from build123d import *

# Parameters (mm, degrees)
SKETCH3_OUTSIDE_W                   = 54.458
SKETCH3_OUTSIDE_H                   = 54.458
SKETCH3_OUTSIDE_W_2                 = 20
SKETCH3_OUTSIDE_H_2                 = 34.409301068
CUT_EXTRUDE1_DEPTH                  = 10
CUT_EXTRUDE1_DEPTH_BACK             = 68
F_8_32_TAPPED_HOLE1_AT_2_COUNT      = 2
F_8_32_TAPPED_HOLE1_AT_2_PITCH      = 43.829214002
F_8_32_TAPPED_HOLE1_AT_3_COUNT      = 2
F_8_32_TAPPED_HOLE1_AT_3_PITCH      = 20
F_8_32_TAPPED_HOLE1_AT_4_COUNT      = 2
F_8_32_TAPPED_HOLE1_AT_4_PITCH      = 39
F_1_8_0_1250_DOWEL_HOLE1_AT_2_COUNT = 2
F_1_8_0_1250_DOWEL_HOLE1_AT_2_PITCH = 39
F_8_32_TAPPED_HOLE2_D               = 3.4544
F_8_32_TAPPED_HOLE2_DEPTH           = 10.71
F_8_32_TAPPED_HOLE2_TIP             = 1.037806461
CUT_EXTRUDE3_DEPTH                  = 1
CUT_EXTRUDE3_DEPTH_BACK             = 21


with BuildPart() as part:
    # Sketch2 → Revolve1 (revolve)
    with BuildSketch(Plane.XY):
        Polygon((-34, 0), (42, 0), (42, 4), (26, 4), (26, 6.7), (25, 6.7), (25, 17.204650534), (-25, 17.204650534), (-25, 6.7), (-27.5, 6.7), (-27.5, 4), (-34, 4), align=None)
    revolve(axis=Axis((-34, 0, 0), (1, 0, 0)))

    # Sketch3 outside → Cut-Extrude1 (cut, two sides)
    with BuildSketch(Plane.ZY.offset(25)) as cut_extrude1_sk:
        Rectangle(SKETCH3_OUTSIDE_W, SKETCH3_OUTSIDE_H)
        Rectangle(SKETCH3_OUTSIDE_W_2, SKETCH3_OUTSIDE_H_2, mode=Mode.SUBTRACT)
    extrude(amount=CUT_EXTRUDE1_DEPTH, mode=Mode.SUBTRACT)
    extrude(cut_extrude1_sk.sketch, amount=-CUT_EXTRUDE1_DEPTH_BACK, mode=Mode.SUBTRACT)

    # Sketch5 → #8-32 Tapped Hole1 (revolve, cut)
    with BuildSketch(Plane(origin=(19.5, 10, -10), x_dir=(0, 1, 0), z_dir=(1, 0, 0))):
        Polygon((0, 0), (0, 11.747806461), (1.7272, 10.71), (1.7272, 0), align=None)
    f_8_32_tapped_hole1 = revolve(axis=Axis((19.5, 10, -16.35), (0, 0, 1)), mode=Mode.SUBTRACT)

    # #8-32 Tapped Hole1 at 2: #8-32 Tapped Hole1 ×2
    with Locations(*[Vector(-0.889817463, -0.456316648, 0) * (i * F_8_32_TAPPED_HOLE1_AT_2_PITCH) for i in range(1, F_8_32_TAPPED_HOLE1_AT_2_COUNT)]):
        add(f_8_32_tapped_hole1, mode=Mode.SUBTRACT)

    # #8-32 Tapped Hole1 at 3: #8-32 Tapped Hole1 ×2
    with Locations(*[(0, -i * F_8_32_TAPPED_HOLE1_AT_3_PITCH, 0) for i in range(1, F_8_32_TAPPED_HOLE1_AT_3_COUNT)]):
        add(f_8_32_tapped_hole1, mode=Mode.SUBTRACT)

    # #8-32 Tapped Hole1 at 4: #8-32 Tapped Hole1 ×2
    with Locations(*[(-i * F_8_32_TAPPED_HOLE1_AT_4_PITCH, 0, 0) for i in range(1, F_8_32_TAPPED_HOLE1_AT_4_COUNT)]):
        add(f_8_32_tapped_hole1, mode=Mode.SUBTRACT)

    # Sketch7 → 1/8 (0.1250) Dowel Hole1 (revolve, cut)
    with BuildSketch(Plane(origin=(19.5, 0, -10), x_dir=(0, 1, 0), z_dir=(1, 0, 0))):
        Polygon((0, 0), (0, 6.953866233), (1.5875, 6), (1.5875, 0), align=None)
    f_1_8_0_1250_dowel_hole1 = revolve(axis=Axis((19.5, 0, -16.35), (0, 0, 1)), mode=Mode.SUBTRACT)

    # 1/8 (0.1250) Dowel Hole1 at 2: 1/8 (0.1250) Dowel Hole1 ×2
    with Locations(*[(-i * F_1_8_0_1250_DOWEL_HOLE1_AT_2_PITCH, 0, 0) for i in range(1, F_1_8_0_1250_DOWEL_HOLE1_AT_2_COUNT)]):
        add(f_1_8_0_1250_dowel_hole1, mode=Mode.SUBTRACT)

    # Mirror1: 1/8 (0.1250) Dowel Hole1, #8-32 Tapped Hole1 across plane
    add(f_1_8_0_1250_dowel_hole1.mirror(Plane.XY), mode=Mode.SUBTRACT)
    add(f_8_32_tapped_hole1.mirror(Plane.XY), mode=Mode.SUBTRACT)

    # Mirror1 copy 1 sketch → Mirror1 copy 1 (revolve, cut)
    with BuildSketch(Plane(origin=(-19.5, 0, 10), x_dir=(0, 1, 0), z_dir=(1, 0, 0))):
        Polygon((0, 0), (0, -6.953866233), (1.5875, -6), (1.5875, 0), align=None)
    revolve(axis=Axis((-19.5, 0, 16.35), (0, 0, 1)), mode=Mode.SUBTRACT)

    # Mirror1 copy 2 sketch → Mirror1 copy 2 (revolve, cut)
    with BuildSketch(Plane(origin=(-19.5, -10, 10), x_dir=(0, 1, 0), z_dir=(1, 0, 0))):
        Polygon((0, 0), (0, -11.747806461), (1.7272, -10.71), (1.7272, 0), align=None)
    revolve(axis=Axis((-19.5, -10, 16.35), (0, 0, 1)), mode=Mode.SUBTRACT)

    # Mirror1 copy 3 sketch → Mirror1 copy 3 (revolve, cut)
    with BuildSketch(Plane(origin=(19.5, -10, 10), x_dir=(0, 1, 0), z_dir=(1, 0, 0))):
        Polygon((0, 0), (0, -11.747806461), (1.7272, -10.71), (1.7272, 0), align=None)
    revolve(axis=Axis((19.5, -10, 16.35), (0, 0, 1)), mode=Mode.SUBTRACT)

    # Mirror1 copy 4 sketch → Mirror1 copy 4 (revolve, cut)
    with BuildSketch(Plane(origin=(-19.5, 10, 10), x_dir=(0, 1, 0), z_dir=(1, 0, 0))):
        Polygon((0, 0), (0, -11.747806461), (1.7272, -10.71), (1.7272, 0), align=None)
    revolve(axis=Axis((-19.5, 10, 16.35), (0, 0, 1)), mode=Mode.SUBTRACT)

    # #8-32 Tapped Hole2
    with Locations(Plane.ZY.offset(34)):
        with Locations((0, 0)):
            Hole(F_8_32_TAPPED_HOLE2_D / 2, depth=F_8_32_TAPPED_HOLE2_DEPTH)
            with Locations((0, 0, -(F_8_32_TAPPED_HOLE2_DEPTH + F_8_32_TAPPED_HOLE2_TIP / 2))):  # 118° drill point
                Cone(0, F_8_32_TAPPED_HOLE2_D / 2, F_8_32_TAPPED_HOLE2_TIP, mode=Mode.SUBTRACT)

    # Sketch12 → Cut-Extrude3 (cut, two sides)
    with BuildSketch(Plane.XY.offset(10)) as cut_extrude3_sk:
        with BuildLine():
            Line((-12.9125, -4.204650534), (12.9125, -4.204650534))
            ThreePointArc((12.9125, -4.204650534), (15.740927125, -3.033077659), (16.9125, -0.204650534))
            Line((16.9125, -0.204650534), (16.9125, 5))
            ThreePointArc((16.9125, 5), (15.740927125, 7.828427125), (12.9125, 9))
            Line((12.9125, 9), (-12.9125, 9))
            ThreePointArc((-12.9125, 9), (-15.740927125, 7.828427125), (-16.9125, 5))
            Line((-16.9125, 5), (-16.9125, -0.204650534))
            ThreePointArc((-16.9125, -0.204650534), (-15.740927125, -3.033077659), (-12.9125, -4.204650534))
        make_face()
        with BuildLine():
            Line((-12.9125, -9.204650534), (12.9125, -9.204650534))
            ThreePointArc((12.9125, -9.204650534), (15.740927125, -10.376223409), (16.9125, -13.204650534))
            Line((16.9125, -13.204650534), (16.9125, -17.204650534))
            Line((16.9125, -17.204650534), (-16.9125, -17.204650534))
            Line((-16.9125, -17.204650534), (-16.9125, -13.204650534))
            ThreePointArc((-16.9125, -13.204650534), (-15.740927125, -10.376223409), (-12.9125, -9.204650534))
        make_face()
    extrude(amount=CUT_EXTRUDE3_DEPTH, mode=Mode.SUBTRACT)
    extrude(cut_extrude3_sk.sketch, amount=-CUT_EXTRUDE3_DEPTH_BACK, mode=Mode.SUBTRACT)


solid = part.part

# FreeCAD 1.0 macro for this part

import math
import FreeCAD as App
import Part
import Sketcher
Q = App.Units.Quantity


def add_polygon(sketch, points):
    """Adds a closed chain of lines whose ends are joined by coincident constraints."""
    first, n = sketch.GeometryCount, len(points)
    for a, b in zip(points, points[1:] + points[:1]):
        sketch.addGeometry(Part.LineSegment(App.Vector(*a, 0), App.Vector(*b, 0)), False)
    for i in range(n):
        sketch.addConstraint(Sketcher.Constraint("Coincident", first + i, 2, first + (i + 1) % n, 1))

doc = App.newDocument("Part")
params = doc.addObject("Spreadsheet::Sheet", "Params")
for row, (alias, value) in enumerate([
    ("sketch1_width", "76 mm"),
    ("sketch1_width2", "16 mm"),
    ("sketch1_width3", "1 mm"),
    ("sketch1_width4", "50 mm"),
    ("sketch1_height", "4 mm"),
    ("revolution_angle", "360 deg"),
    ("sketch2_height", "20 mm"),
    ("sketch3_height", "10.71 mm"),
    ("groove_angle", "360 deg"),
    ("linearpattern_pitch", "43.829214 mm"),
    ("linearpattern2_pitch", "20 mm"),
    ("linearpattern3_pitch", "39 mm"),
    ("sketch4_height", "6 mm"),
    ("groove2_angle", "360 deg"),
    ("linearpattern4_pitch", "39 mm"),
    ("sketch5_height", "6 mm"),
    ("groove3_angle", "360 deg"),
    ("sketch6_height", "10.71 mm"),
    ("groove4_angle", "360 deg"),
    ("sketch7_height", "10.71 mm"),
    ("groove5_angle", "360 deg"),
    ("sketch8_height", "10.71 mm"),
    ("groove6_angle", "360 deg"),
    ("hole_diameter", "3.4544 mm"),
    ("hole_depth", "10.71 mm"),
    ("sketch10_radius", "4 mm"),
    ("sketch10_height", "4 mm"),
], start=1):
    params.set(f"A{row}", alias)
    params.set(f"B{row}", "=" + value)
    params.setAlias(f"B{row}", alias)

body = doc.addObject("PartDesign::Body", "Body")

# Sketch on XY plane
sketch1 = doc.addObject("Sketcher::SketchObject", "Sketch")
body.addObject(sketch1)
sketch1.AttachmentSupport = (doc.XY_Plane, [""])
sketch1.MapMode = "FlatFace"
add_polygon(sketch1, [(-34, 0), (42, 0), (42, 4), (26, 4), (26, 6.7), (25, 6.7), (25, 17.2), (-25, 17.2), (-25, 6.7), (-27.5, 6.7), (-27.5, 4), (-34, 4)])  # lines 0-11
sketch1.addConstraint([
    Sketcher.Constraint("Horizontal", 0),
    Sketcher.Constraint("Vertical", 1),
    Sketcher.Constraint("Horizontal", 2),
    Sketcher.Constraint("Vertical", 3),
    Sketcher.Constraint("Horizontal", 4),
    Sketcher.Constraint("Vertical", 5),
    Sketcher.Constraint("Horizontal", 6),
    Sketcher.Constraint("Vertical", 7),
    Sketcher.Constraint("Horizontal", 8),
    Sketcher.Constraint("Vertical", 9),
    Sketcher.Constraint("Horizontal", 10),
    Sketcher.Constraint("Vertical", 11),
    Sketcher.Constraint("Symmetric", 4, 2, 7, 2, -2),
    Sketcher.Constraint("PointOnObject", 0, 2, -1),
    Sketcher.Constraint("Horizontal", 2, 2, 9, 2),
    Sketcher.Constraint("DistanceX", 0, 1, 0, 2, 76.0),
    Sketcher.Constraint("DistanceX", 2, 2, 2, 1, 16.0),
    Sketcher.Constraint("DistanceX", 4, 2, 4, 1, 1.0),
    Sketcher.Constraint("DistanceX", 6, 2, 6, 1, 50.0),
    Sketcher.Constraint("DistanceY", 1, 1, 1, 2, 4.0),
    Sketcher.Constraint("DistanceX", 8, 2, 8, 1, 2.5),
    Sketcher.Constraint("DistanceY", 3, 1, 3, 2, 2.7),
    Sketcher.Constraint("DistanceY", 5, 1, 5, 2, 10.504651),
])
sketch1.setExpression("Constraints[27]", "Params.sketch1_width")
sketch1.setExpression("Constraints[28]", "Params.sketch1_width2")
sketch1.setExpression("Constraints[29]", "Params.sketch1_width3")
sketch1.setExpression("Constraints[30]", "Params.sketch1_width4")
sketch1.setExpression("Constraints[31]", "Params.sketch1_height")
revolution = doc.addObject("PartDesign::Revolution", "Revolution")
body.addObject(revolution)
revolution.Profile = sketch1
revolution.ReferenceAxis = (sketch1, ["H_Axis"])
revolution.setExpression("Angle", "Params.revolution_angle")

# Sketch on YZ plane
sketch2 = doc.addObject("Sketcher::SketchObject", "Sketch001")
body.addObject(sketch2)
sketch2.AttachmentSupport = (doc.YZ_Plane, [""])
sketch2.MapMode = "FlatFace"
sketch2.AttachmentOffset = App.Placement(App.Vector(0, 0, -25), App.Rotation())
add_polygon(sketch2, [(27, -27), (-27, -27), (-27, 27), (27, 27)])  # lines 0-3
add_polygon(sketch2, [(-17, 10), (-17, -10), (17, -10), (17, 10)])  # lines 4-7
sketch2.addConstraint([
    Sketcher.Constraint("Horizontal", 0),
    Sketcher.Constraint("Vertical", 1),
    Sketcher.Constraint("Horizontal", 2),
    Sketcher.Constraint("Vertical", 3),
    Sketcher.Constraint("Vertical", 4),
    Sketcher.Constraint("Horizontal", 5),
    Sketcher.Constraint("Vertical", 6),
    Sketcher.Constraint("Horizontal", 7),
    Sketcher.Constraint("Symmetric", 0, 2, 2, 2, -1, 1),
    Sketcher.Constraint("Symmetric", 4, 2, 6, 2, -1, 1),
    Sketcher.Constraint("Equal", 2, 1),
    Sketcher.Constraint("DistanceY", 4, 2, 4, 1, 20.0),
    Sketcher.Constraint("DistanceX", 0, 2, 0, 1, 54.458),
    Sketcher.Constraint("DistanceX", 5, 1, 5, 2, 34.409301),
])
sketch2.setExpression("Constraints[19]", "Params.sketch2_height")
pocket1 = doc.addObject("PartDesign::Pocket", "Pocket")
body.addObject(pocket1)
pocket1.Profile = sketch2
pocket1.Type = "ThroughAll"
pocket1.Midplane = True

# Sketch on YZ plane
sketch3 = doc.addObject("Sketcher::SketchObject", "Sketch002")
body.addObject(sketch3)
sketch3.AttachmentSupport = (doc.YZ_Plane, [""])
sketch3.MapMode = "FlatFace"
sketch3.AttachmentOffset = App.Placement(App.Vector(0, 0, 19.5), App.Rotation())
add_polygon(sketch3, [(10, 1.7), (10, -10), (11.7, -10), (11.7, 0.7)])  # lines 0-3
sketch3.addGeometry(Part.LineSegment(App.Vector(10, -10, 0), App.Vector(10, 1.7, 0)), True)  # axis
sketch3.addConstraint([
    Sketcher.Constraint("Vertical", 0),
    Sketcher.Constraint("Horizontal", 1),
    Sketcher.Constraint("Vertical", 2),
    Sketcher.Constraint("Vertical", 4),
    Sketcher.Constraint("Coincident", 4, 1, 0, 2),
    Sketcher.Constraint("Equal", 0, 4),
    Sketcher.Constraint("Angle", 3, Q("149 deg")),
    Sketcher.Constraint("DistanceX", -1, 1, 0, 2, 10.0),
    Sketcher.Constraint("DistanceY", 0, 2, -1, 1, 10.0),
    Sketcher.Constraint("DistanceY", 2, 1, 2, 2, 10.71),
    Sketcher.Constraint("DistanceX", 1, 1, 1, 2, 1.7272),
])
sketch3.setExpression("Constraints[13]", "Params.sketch3_height")
groove = doc.addObject("PartDesign::Groove", "Groove")
body.addObject(groove)
groove.Profile = sketch3
groove.ReferenceAxis = (sketch3, ["Axis0"])
groove.setExpression("Angle", "Params.groove_angle")
doc.recompute()

datumline = doc.addObject("PartDesign::Line", "DatumLine")
body.addObject(datumline)
datumline.Placement = App.Placement(App.Vector(0, 0, 0), App.Rotation(App.Vector(0, 0, 1), App.Vector(-0.889817463, -0.456316648, 0)))
linearpattern = doc.addObject("PartDesign::LinearPattern", "LinearPattern")
body.addObject(linearpattern)
linearpattern.Originals = [groove]
linearpattern.Direction = (datumline, [""])
linearpattern.Mode = "offset"
linearpattern.setExpression("Offset", "Params.linearpattern_pitch")
linearpattern.Occurrences = 2
body.Tip = linearpattern
doc.recompute()

linearpattern2 = doc.addObject("PartDesign::LinearPattern", "LinearPattern001")
body.addObject(linearpattern2)
linearpattern2.Originals = [groove]
linearpattern2.Direction = (doc.Y_Axis, [""])
linearpattern2.Mode = "offset"
linearpattern2.setExpression("Offset", "Params.linearpattern2_pitch")
linearpattern2.Occurrences = 2
linearpattern2.Reversed = True
body.Tip = linearpattern2
doc.recompute()

linearpattern3 = doc.addObject("PartDesign::LinearPattern", "LinearPattern002")
body.addObject(linearpattern3)
linearpattern3.Originals = [groove]
linearpattern3.Direction = (doc.X_Axis, [""])
linearpattern3.Mode = "offset"
linearpattern3.setExpression("Offset", "Params.linearpattern3_pitch")
linearpattern3.Occurrences = 2
linearpattern3.Reversed = True
body.Tip = linearpattern3

# Sketch on YZ plane
sketch4 = doc.addObject("Sketcher::SketchObject", "Sketch003")
body.addObject(sketch4)
sketch4.AttachmentSupport = (doc.YZ_Plane, [""])
sketch4.MapMode = "FlatFace"
sketch4.AttachmentOffset = App.Placement(App.Vector(0, 0, 19.5), App.Rotation())
add_polygon(sketch4, [(0, -3), (0, -10), (1.6, -10), (1.6, -4)])  # lines 0-3
sketch4.addConstraint([
    Sketcher.Constraint("Vertical", 0),
    Sketcher.Constraint("Horizontal", 1),
    Sketcher.Constraint("Vertical", 2),
    Sketcher.Constraint("PointOnObject", 0, 2, -2),
    Sketcher.Constraint("DistanceY", 2, 1, 2, 2, 6.0),
    Sketcher.Constraint("Angle", 3, Q("149 deg")),
    Sketcher.Constraint("DistanceY", 0, 2, -1, 1, 10.0),
    Sketcher.Constraint("DistanceX", 1, 1, 1, 2, 1.5875),
])
sketch4.setExpression("Constraints[8]", "Params.sketch4_height")
groove2 = doc.addObject("PartDesign::Groove", "Groove001")
body.addObject(groove2)
groove2.Profile = sketch4
groove2.ReferenceAxis = (sketch4, ["V_Axis"])
groove2.setExpression("Angle", "Params.groove2_angle")
doc.recompute()

linearpattern4 = doc.addObject("PartDesign::LinearPattern", "LinearPattern003")
body.addObject(linearpattern4)
linearpattern4.Originals = [groove2]
linearpattern4.Direction = (doc.X_Axis, [""])
linearpattern4.Mode = "offset"
linearpattern4.setExpression("Offset", "Params.linearpattern4_pitch")
linearpattern4.Occurrences = 2
linearpattern4.Reversed = True
body.Tip = linearpattern4
doc.recompute()

mirrored = doc.addObject("PartDesign::Mirrored", "Mirrored")
body.addObject(mirrored)
mirrored.Originals = [groove2, groove]
mirrored.MirrorPlane = (doc.XY_Plane, [""])
body.Tip = mirrored

# Sketch on YZ plane
sketch5 = doc.addObject("Sketcher::SketchObject", "Sketch004")
body.addObject(sketch5)
sketch5.AttachmentSupport = (doc.YZ_Plane, [""])
sketch5.MapMode = "FlatFace"
sketch5.AttachmentOffset = App.Placement(App.Vector(0, 0, -19.5), App.Rotation())
add_polygon(sketch5, [(0, 10), (0, 3), (1.6, 4), (1.6, 10)])  # lines 0-3
sketch5.addConstraint([
    Sketcher.Constraint("Vertical", 0),
    Sketcher.Constraint("Vertical", 2),
    Sketcher.Constraint("Horizontal", 3),
    Sketcher.Constraint("PointOnObject", 0, 2, -2),
    Sketcher.Constraint("DistanceY", 2, 1, 2, 2, 6.0),
    Sketcher.Constraint("Angle", 1, Q("31 deg")),
    Sketcher.Constraint("DistanceY", -1, 1, 1, 2, 4.0),
    Sketcher.Constraint("DistanceX", 3, 2, 3, 1, 1.5875),
])
sketch5.setExpression("Constraints[8]", "Params.sketch5_height")
groove3 = doc.addObject("PartDesign::Groove", "Groove002")
body.addObject(groove3)
groove3.Profile = sketch5
groove3.ReferenceAxis = (sketch5, ["V_Axis"])
groove3.setExpression("Angle", "Params.groove3_angle")

# Sketch on YZ plane
sketch6 = doc.addObject("Sketcher::SketchObject", "Sketch005")
body.addObject(sketch6)
sketch6.AttachmentSupport = (doc.YZ_Plane, [""])
sketch6.MapMode = "FlatFace"
sketch6.AttachmentOffset = App.Placement(App.Vector(0, 0, -19.5), App.Rotation())
add_polygon(sketch6, [(-10, 10), (-10, -1.7), (-8.3, -0.7), (-8.3, 10)])  # lines 0-3
sketch6.addGeometry(Part.LineSegment(App.Vector(-10, -1.7, 0), App.Vector(-10, 10, 0)), True)  # axis
sketch6.addConstraint([
    Sketcher.Constraint("Vertical", 0),
    Sketcher.Constraint("Vertical", 2),
    Sketcher.Constraint("Horizontal", 3),
    Sketcher.Constraint("Vertical", 4),
    Sketcher.Constraint("Coincident", 4, 1, 0, 2),
    Sketcher.Constraint("Horizontal", 2, 2, 4, 2),
    Sketcher.Constraint("Angle", 1, Q("31 deg")),
    Sketcher.Constraint("DistanceX", 0, 2, -1, 1, 10.0),
    Sketcher.Constraint("DistanceY", -1, 1, 2, 2, 10.0),
    Sketcher.Constraint("DistanceY", 2, 1, 2, 2, 10.71),
    Sketcher.Constraint("DistanceX", 3, 2, 3, 1, 1.7272),
])
sketch6.setExpression("Constraints[13]", "Params.sketch6_height")
groove4 = doc.addObject("PartDesign::Groove", "Groove003")
body.addObject(groove4)
groove4.Profile = sketch6
groove4.ReferenceAxis = (sketch6, ["Axis0"])
groove4.setExpression("Angle", "Params.groove4_angle")

# Sketch on YZ plane
sketch7 = doc.addObject("Sketcher::SketchObject", "Sketch006")
body.addObject(sketch7)
sketch7.AttachmentSupport = (doc.YZ_Plane, [""])
sketch7.MapMode = "FlatFace"
sketch7.AttachmentOffset = App.Placement(App.Vector(0, 0, 19.5), App.Rotation())
add_polygon(sketch7, [(-10, 10), (-10, -1.7), (-8.3, -0.7), (-8.3, 10)])  # lines 0-3
sketch7.addGeometry(Part.LineSegment(App.Vector(-10, -1.7, 0), App.Vector(-10, 10, 0)), True)  # axis
sketch7.addConstraint([
    Sketcher.Constraint("Vertical", 0),
    Sketcher.Constraint("Vertical", 2),
    Sketcher.Constraint("Horizontal", 3),
    Sketcher.Constraint("Vertical", 4),
    Sketcher.Constraint("Coincident", 4, 1, 0, 2),
    Sketcher.Constraint("Horizontal", 2, 2, 4, 2),
    Sketcher.Constraint("Angle", 1, Q("31 deg")),
    Sketcher.Constraint("DistanceX", 0, 2, -1, 1, 10.0),
    Sketcher.Constraint("DistanceY", -1, 1, 2, 2, 10.0),
    Sketcher.Constraint("DistanceY", 2, 1, 2, 2, 10.71),
    Sketcher.Constraint("DistanceX", 3, 2, 3, 1, 1.7272),
])
sketch7.setExpression("Constraints[13]", "Params.sketch7_height")
groove5 = doc.addObject("PartDesign::Groove", "Groove004")
body.addObject(groove5)
groove5.Profile = sketch7
groove5.ReferenceAxis = (sketch7, ["Axis0"])
groove5.setExpression("Angle", "Params.groove5_angle")

# Sketch on YZ plane
sketch8 = doc.addObject("Sketcher::SketchObject", "Sketch007")
body.addObject(sketch8)
sketch8.AttachmentSupport = (doc.YZ_Plane, [""])
sketch8.MapMode = "FlatFace"
sketch8.AttachmentOffset = App.Placement(App.Vector(0, 0, -19.5), App.Rotation())
add_polygon(sketch8, [(10, 10), (10, -1.7), (11.7, -0.7), (11.7, 10)])  # lines 0-3
sketch8.addGeometry(Part.LineSegment(App.Vector(10, -1.7, 0), App.Vector(10, 10, 0)), True)  # axis
sketch8.addConstraint([
    Sketcher.Constraint("Vertical", 0),
    Sketcher.Constraint("Vertical", 2),
    Sketcher.Constraint("Horizontal", 3),
    Sketcher.Constraint("Vertical", 4),
    Sketcher.Constraint("Coincident", 4, 1, 0, 2),
    Sketcher.Constraint("Horizontal", 2, 2, 4, 2),
    Sketcher.Constraint("Angle", 1, Q("31 deg")),
    Sketcher.Constraint("DistanceX", -1, 1, 0, 2, 10.0),
    Sketcher.Constraint("DistanceY", -1, 1, 2, 2, 10.0),
    Sketcher.Constraint("DistanceY", 2, 1, 2, 2, 10.71),
    Sketcher.Constraint("DistanceX", 3, 2, 3, 1, 1.7272),
])
sketch8.setExpression("Constraints[13]", "Params.sketch8_height")
groove6 = doc.addObject("PartDesign::Groove", "Groove005")
body.addObject(groove6)
groove6.Profile = sketch8
groove6.ReferenceAxis = (sketch8, ["Axis0"])
groove6.setExpression("Angle", "Params.groove6_angle")

# Sketch on YZ plane
sketch9 = doc.addObject("Sketcher::SketchObject", "Sketch008")
body.addObject(sketch9)
sketch9.AttachmentSupport = (doc.YZ_Plane, [""])
sketch9.MapMode = "FlatFace"
sketch9.AttachmentOffset = App.Placement(App.Vector(0, 0, -34), App.Rotation())
sketch9.addGeometry(Part.Circle(App.Vector(0, 0, 0), App.Vector(0, 0, 1), 1.7), False)
sketch9.addConstraint([
    Sketcher.Constraint("Coincident", 0, 3, -1, 1),
    Sketcher.Constraint("Diameter", 0, 3.4544),
])
doc.recompute()
hole = doc.addObject("PartDesign::Hole", "Hole")
body.addObject(hole)
hole.Profile = sketch9
hole.ThreadType = "None"
hole.setExpression("Diameter", "Params.hole_diameter")
hole.DepthType = "Dimension"
hole.setExpression("Depth", "Params.hole_depth")
hole.DrillPoint = "Angled"
hole.DrillPointAngle = 118
hole.Reversed = True

# Sketch on XY plane
sketch10 = doc.addObject("Sketcher::SketchObject", "Sketch009")
body.addObject(sketch10)
sketch10.AttachmentSupport = (doc.XY_Plane, [""])
sketch10.MapMode = "FlatFace"
sketch10.AttachmentOffset = App.Placement(App.Vector(0, 0, 10), App.Rotation())
sketch10.addGeometry([
    Part.LineSegment(App.Vector(-12.9, -4.2, 0), App.Vector(12.9, -4.2, 0)),  # 0
    Part.ArcOfCircle(Part.Circle(App.Vector(12.9, -0.2, 0), App.Vector(0, 0, 1), 4), math.radians(-90), math.radians(0)),  # 1
    Part.LineSegment(App.Vector(16.9, -0.2, 0), App.Vector(16.9, 5, 0)),  # 2
    Part.ArcOfCircle(Part.Circle(App.Vector(12.9, 5, 0), App.Vector(0, 0, 1), 4), math.radians(0), math.radians(90)),  # 3
    Part.LineSegment(App.Vector(12.9, 9, 0), App.Vector(-12.9, 9, 0)),  # 4
    Part.ArcOfCircle(Part.Circle(App.Vector(-12.9, 5, 0), App.Vector(0, 0, 1), 4), math.radians(90), math.radians(180)),  # 5
    Part.LineSegment(App.Vector(-16.9, 5, 0), App.Vector(-16.9, -0.2, 0)),  # 6
    Part.ArcOfCircle(Part.Circle(App.Vector(-12.9, -0.2, 0), App.Vector(0, 0, 1), 4), math.radians(180), math.radians(270)),  # 7
    Part.LineSegment(App.Vector(12.9, -9.2, 0), App.Vector(-12.9, -9.2, 0)),  # 8
    Part.ArcOfCircle(Part.Circle(App.Vector(-12.9, -13.2, 0), App.Vector(0, 0, 1), 4), math.radians(90), math.radians(180)),  # 9
    Part.LineSegment(App.Vector(-16.9, -13.2, 0), App.Vector(-16.9, -17.2, 0)),  # 10
    Part.LineSegment(App.Vector(-16.9, -17.2, 0), App.Vector(16.9, -17.2, 0)),  # 11
    Part.LineSegment(App.Vector(16.9, -17.2, 0), App.Vector(16.9, -13.2, 0)),  # 12
    Part.ArcOfCircle(Part.Circle(App.Vector(12.9, -13.2, 0), App.Vector(0, 0, 1), 4), math.radians(0), math.radians(90)),  # 13
], False)
sketch10.addConstraint([
    Sketcher.Constraint("Tangent", 0, 2, 1, 1),
    Sketcher.Constraint("Tangent", 1, 2, 2, 1),
    Sketcher.Constraint("Tangent", 2, 2, 3, 1),
    Sketcher.Constraint("Tangent", 3, 2, 4, 1),
    Sketcher.Constraint("Tangent", 4, 2, 5, 1),
    Sketcher.Constraint("Tangent", 5, 2, 6, 1),
    Sketcher.Constraint("Tangent", 6, 2, 7, 1),
    Sketcher.Constraint("Tangent", 7, 2, 0, 1),
    Sketcher.Constraint("Tangent", 8, 2, 9, 1),
    Sketcher.Constraint("Tangent", 9, 2, 10, 1),
    Sketcher.Constraint("Coincident", 10, 2, 11, 1),
    Sketcher.Constraint("Coincident", 11, 2, 12, 1),
    Sketcher.Constraint("Tangent", 12, 2, 13, 1),
    Sketcher.Constraint("Tangent", 13, 2, 8, 1),
    Sketcher.Constraint("Horizontal", 0),
    Sketcher.Constraint("Vertical", 2),
    Sketcher.Constraint("Horizontal", 4),
    Sketcher.Constraint("Vertical", 6),
    Sketcher.Constraint("Horizontal", 8),
    Sketcher.Constraint("Vertical", 10),
    Sketcher.Constraint("Horizontal", 11),
    Sketcher.Constraint("Vertical", 12),
    Sketcher.Constraint("Equal", 1, 3),
    Sketcher.Constraint("Equal", 3, 5),
    Sketcher.Constraint("Equal", 5, 7),
    Sketcher.Constraint("Equal", 7, 9),
    Sketcher.Constraint("Equal", 9, 13),
    Sketcher.Constraint("Vertical", 7, 3, 9, 3),
    Sketcher.Constraint("Vertical", 3, 3, 13, 3),
    Sketcher.Constraint("Radius", 1, 4.0),
    Sketcher.Constraint("DistanceY", 10, 2, 10, 1, 4.0),
    Sketcher.Constraint("DistanceY", -1, 1, 3, 3, 5.0),
    Sketcher.Constraint("DistanceY", 9, 3, 7, 3, 13.0),
    Sketcher.Constraint("DistanceX", 0, 1, 0, 2, 25.825),
    Sketcher.Constraint("DistanceY", 2, 1, 2, 2, 5.204651),
    Sketcher.Constraint("DistanceX", -1, 1, 1, 3, 12.9125),
])
sketch10.setExpression("Constraints[29]", "Params.sketch10_radius")
sketch10.setExpression("Constraints[30]", "Params.sketch10_height")
pocket2 = doc.addObject("PartDesign::Pocket", "Pocket001")
body.addObject(pocket2)
pocket2.Profile = sketch10
pocket2.Type = "ThroughAll"
pocket2.Midplane = True

doc.recompute()
